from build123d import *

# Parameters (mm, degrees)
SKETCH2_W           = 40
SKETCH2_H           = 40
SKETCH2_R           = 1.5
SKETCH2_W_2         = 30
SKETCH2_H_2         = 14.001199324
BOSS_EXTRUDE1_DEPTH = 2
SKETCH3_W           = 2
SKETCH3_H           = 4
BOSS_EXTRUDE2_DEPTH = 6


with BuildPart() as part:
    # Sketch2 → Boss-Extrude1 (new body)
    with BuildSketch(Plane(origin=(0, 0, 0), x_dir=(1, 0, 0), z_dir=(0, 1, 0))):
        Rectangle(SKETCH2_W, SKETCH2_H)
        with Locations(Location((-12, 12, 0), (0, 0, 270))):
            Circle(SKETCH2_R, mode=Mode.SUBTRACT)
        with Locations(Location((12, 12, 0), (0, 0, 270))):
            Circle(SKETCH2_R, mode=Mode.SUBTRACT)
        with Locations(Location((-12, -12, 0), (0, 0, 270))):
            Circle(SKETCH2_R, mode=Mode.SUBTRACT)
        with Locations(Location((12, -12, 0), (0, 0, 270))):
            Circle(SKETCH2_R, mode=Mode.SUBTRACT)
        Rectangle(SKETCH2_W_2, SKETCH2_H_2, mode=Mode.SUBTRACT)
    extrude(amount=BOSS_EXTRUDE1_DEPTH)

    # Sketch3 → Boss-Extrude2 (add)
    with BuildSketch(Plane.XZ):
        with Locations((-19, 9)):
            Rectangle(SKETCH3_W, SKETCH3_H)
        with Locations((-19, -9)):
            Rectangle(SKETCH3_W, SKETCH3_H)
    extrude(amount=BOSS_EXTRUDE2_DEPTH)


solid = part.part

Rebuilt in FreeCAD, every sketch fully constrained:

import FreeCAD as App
import Part
import Sketcher

doc = App.newDocument("Part")
body = doc.addObject("PartDesign::Body", "Body")

# Sketch on XZ plane
sketch1 = body.newObject("Sketcher::SketchObject", "Sketch")
sketch1.AttachmentSupport = (doc.getObject("XZ_Plane"), [""])
sketch1.MapMode = "FlatFace"
sketch1.addGeometry([
    Part.LineSegment(App.Vector(-20, -20, 0), App.Vector(-20, 20, 0)),  # 0
    Part.LineSegment(App.Vector(-20, 20, 0), App.Vector(20, 20, 0)),  # 1
    Part.LineSegment(App.Vector(20, 20, 0), App.Vector(20, -20, 0)),  # 2
    Part.LineSegment(App.Vector(20, -20, 0), App.Vector(-20, -20, 0)),  # 3
    Part.Circle(App.Vector(-12, 12, 0), App.Vector(0, 0, 1), 1.5),  # 4
    Part.Circle(App.Vector(12, 12, 0), App.Vector(0, 0, 1), 1.5),  # 5
    Part.Circle(App.Vector(-12, -12, 0), App.Vector(0, 0, 1), 1.5),  # 6
    Part.LineSegment(App.Vector(15, 7, 0), App.Vector(-15, 7, 0)),  # 7
    Part.LineSegment(App.Vector(-15, 7, 0), App.Vector(-15, -7, 0)),  # 8
    Part.LineSegment(App.Vector(-15, -7, 0), App.Vector(15, -7, 0)),  # 9
    Part.LineSegment(App.Vector(15, -7, 0), App.Vector(15, 7, 0)),  # 10
    Part.Circle(App.Vector(12, -12, 0), App.Vector(0, 0, 1), 1.5),  # 11
], False)
sketch1.addConstraint([
    Sketcher.Constraint("Coincident", 0, 2, 1, 1),
    Sketcher.Constraint("Coincident", 1, 2, 2, 1),
    Sketcher.Constraint("Coincident", 2, 2, 3, 1),
    Sketcher.Constraint("Coincident", 3, 2, 0, 1),
    Sketcher.Constraint("Coincident", 7, 2, 8, 1),
    Sketcher.Constraint("Coincident", 8, 2, 9, 1),
    Sketcher.Constraint("Coincident", 9, 2, 10, 1),
    Sketcher.Constraint("Coincident", 10, 2, 7, 1),
    Sketcher.Constraint("Vertical", 0),
    Sketcher.Constraint("Horizontal", 1),
    Sketcher.Constraint("Vertical", 2),
    Sketcher.Constraint("Horizontal", 3),
    Sketcher.Constraint("Horizontal", 7),
    Sketcher.Constraint("Vertical", 8),
    Sketcher.Constraint("Horizontal", 9),
    Sketcher.Constraint("Vertical", 10),
    Sketcher.Constraint("Equal", 4, 5),
    Sketcher.Constraint("Equal", 5, 6),
    Sketcher.Constraint("Equal", 6, 11),
    Sketcher.Constraint("Symmetric", 5, 3, 6, 3, -1, 1),
    Sketcher.Constraint("Symmetric", 4, 3, 11, 3, -1, 1),
    Sketcher.Constraint("Symmetric", 0, 2, 2, 2, -1, 1),
    Sketcher.Constraint("Symmetric", 7, 2, 9, 2, -1, 1),
    Sketcher.Constraint("Symmetric", 4, 3, 5, 3, -2),
    Sketcher.Constraint("Equal", 3, 0),
    Sketcher.Constraint("Diameter", 4, 3.0),
    Sketcher.Constraint("DistanceX", 1, 1, 1, 2, 40.0),
    Sketcher.Constraint("DistanceX", 7, 2, 7, 1, 30.0),
    Sketcher.Constraint("DistanceX", 4, 3, -1, 1, 12.0),
    Sketcher.Constraint("DistanceY", -1, 1, 4, 3, 12.0),
    Sketcher.Constraint("DistanceY", 8, 2, 8, 1, 14.001199),
])
pad1 = body.newObject("PartDesign::Pad", "Pad")
pad1.Profile = sketch1
pad1.Length = 2
pad1.Reversed = True

# Sketch on XZ plane
sketch2 = body.newObject("Sketcher::SketchObject", "Sketch001")
sketch2.AttachmentSupport = (doc.getObject("XZ_Plane"), [""])
sketch2.MapMode = "FlatFace"
sketch2.addGeometry([
    Part.LineSegment(App.Vector(-20, 11, 0), App.Vector(-20, 7, 0)),  # 0
    Part.LineSegment(App.Vector(-20, 7, 0), App.Vector(-18, 7, 0)),  # 1
    Part.LineSegment(App.Vector(-18, 7, 0), App.Vector(-18, 11, 0)),  # 2
    Part.LineSegment(App.Vector(-18, 11, 0), App.Vector(-20, 11, 0)),  # 3
    Part.LineSegment(App.Vector(-20, -7, 0), App.Vector(-20, -11, 0)),  # 4
    Part.LineSegment(App.Vector(-20, -11, 0), App.Vector(-18, -11, 0)),  # 5
    Part.LineSegment(App.Vector(-18, -11, 0), App.Vector(-18, -7, 0)),  # 6
    Part.LineSegment(App.Vector(-18, -7, 0), App.Vector(-20, -7, 0)),  # 7
], False)
sketch2.addConstraint([
    Sketcher.Constraint("Coincident", 0, 2, 1, 1),
    Sketcher.Constraint("Coincident", 1, 2, 2, 1),
    Sketcher.Constraint("Coincident", 2, 2, 3, 1),
    Sketcher.Constraint("Coincident", 3, 2, 0, 1),
    Sketcher.Constraint("Coincident", 4, 2, 5, 1),
    Sketcher.Constraint("Coincident", 5, 2, 6, 1),
    Sketcher.Constraint("Coincident", 6, 2, 7, 1),
    Sketcher.Constraint("Coincident", 7, 2, 4, 1),
    Sketcher.Constraint("Vertical", 0),
    Sketcher.Constraint("Horizontal", 1),
    Sketcher.Constraint("Vertical", 2),
    Sketcher.Constraint("Horizontal", 3),
    Sketcher.Constraint("Vertical", 4),
    Sketcher.Constraint("Horizontal", 5),
    Sketcher.Constraint("Vertical", 6),
    Sketcher.Constraint("Horizontal", 7),
    Sketcher.Constraint("Symmetric", 3, 2, 4, 2, -1),
    Sketcher.Constraint("Symmetric", 1, 2, 6, 2, -1),
    Sketcher.Constraint("DistanceX", 1, 1, 1, 2, 2.0),
    Sketcher.Constraint("DistanceY", 0, 2, 0, 1, 4.0),
    Sketcher.Constraint("DistanceX", 0, 2, -1, 1, 20.0),
    Sketcher.Constraint("DistanceY", -1, 1, 0, 2, 7.0),
])
pad2 = body.newObject("PartDesign::Pad", "Pad001")
pad2.Profile = sketch2
pad2.Length = 6

doc.recompute()
